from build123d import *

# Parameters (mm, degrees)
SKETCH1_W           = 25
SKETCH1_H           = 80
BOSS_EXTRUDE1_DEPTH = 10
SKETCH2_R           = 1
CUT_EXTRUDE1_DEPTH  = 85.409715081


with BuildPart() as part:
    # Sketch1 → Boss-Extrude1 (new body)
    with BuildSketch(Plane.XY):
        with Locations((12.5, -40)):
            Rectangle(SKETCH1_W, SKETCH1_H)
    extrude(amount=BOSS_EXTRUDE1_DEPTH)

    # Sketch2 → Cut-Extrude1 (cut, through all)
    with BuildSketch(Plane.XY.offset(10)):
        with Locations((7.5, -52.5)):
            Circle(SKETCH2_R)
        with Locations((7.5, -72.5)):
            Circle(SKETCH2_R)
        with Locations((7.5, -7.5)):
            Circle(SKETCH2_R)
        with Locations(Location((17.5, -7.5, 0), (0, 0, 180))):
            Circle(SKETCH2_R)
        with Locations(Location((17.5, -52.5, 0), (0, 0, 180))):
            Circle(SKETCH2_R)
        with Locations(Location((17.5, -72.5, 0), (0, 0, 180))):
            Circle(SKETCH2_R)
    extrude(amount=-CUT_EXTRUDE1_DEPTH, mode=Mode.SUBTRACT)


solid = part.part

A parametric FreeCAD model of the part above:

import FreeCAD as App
import Part
import Sketcher

doc = App.newDocument("Part")
body = doc.addObject("PartDesign::Body", "Body")

# Sketch on XY plane
sketch1 = body.newObject("Sketcher::SketchObject", "Sketch")
sketch1.AttachmentSupport = (doc.getObject("XY_Plane"), [""])
sketch1.MapMode = "FlatFace"
sketch1.addGeometry(Part.LineSegment(App.Vector(0, 0, 0), App.Vector(0, -80, 0)), False)
sketch1.addGeometry(Part.LineSegment(App.Vector(0, -80, 0), App.Vector(25, -80, 0)), False)
sketch1.addGeometry(Part.LineSegment(App.Vector(25, -80, 0), App.Vector(25, 0, 0)), False)
sketch1.addGeometry(Part.LineSegment(App.Vector(25, 0, 0), App.Vector(0, 0, 0)), False)
sketch1.addConstraint(Sketcher.Constraint("Coincident", 0, 2, 1, 1))
sketch1.addConstraint(Sketcher.Constraint("Coincident", 1, 2, 2, 1))
sketch1.addConstraint(Sketcher.Constraint("Coincident", 2, 2, 3, 1))
sketch1.addConstraint(Sketcher.Constraint("Coincident", 3, 2, 0, 1))
sketch1.addConstraint(Sketcher.Constraint("Vertical", 0))
sketch1.addConstraint(Sketcher.Constraint("Horizontal", 1))
sketch1.addConstraint(Sketcher.Constraint("Vertical", 2))
sketch1.addConstraint(Sketcher.Constraint("Horizontal", 3))
sketch1.addConstraint(Sketcher.Constraint("Coincident", 3, 2, -1, 1))
sketch1.addConstraint(Sketcher.Constraint("DistanceX", 1, 1, 1, 2, 25.0))
sketch1.addConstraint(Sketcher.Constraint("DistanceY", 0, 2, 0, 1, 80.0))
pad1 = body.newObject("PartDesign::Pad", "Pad")
pad1.Profile = sketch1
pad1.Length = 10

# Sketch on XY plane
sketch2 = body.newObject("Sketcher::SketchObject", "Sketch001")
sketch2.AttachmentSupport = (doc.getObject("XY_Plane"), [""])
sketch2.MapMode = "FlatFace"
sketch2.AttachmentOffset = App.Placement(App.Vector(0, 0, 10), App.Rotation())
sketch2.addGeometry(Part.Circle(App.Vector(7.5, -52.5, 0), App.Vector(0, 0, 1), 1), False)
sketch2.addGeometry(Part.Circle(App.Vector(7.5, -72.5, 0), App.Vector(0, 0, 1), 1), False)
sketch2.addGeometry(Part.Circle(App.Vector(7.5, -7.5, 0), App.Vector(0, 0, 1), 1), False)
sketch2.addGeometry(Part.Circle(App.Vector(17.5, -7.5, 0), App.Vector(0, 0, 1), 1), False)
sketch2.addGeometry(Part.Circle(App.Vector(17.5, -52.5, 0), App.Vector(0, 0, 1), 1), False)
sketch2.addGeometry(Part.Circle(App.Vector(17.5, -72.5, 0), App.Vector(0, 0, 1), 1), False)
sketch2.addConstraint(Sketcher.Constraint("Equal", 0, 1))
sketch2.addConstraint(Sketcher.Constraint("Equal", 1, 2))
sketch2.addConstraint(Sketcher.Constraint("Equal", 2, 3))
sketch2.addConstraint(Sketcher.Constraint("Equal", 3, 4))
sketch2.addConstraint(Sketcher.Constraint("Equal", 4, 5))
sketch2.addConstraint(Sketcher.Constraint("Horizontal", 2, 3, 3, 3))
sketch2.addConstraint(Sketcher.Constraint("Horizontal", 0, 3, 4, 3))
sketch2.addConstraint(Sketcher.Constraint("Horizontal", 1, 3, 5, 3))
sketch2.addConstraint(Sketcher.Constraint("Vertical", 0, 3, 1, 3))
sketch2.addConstraint(Sketcher.Constraint("Vertical", 1, 3, 2, 3))
sketch2.addConstraint(Sketcher.Constraint("Vertical", 3, 3, 4, 3))
sketch2.addConstraint(Sketcher.Constraint("Vertical", 4, 3, 5, 3))
sketch2.addConstraint(Sketcher.Constraint("Diameter", 0, 2.0))
sketch2.addConstraint(Sketcher.Constraint("DistanceY", 1, 3, 0, 3, 20.0))
sketch2.addConstraint(Sketcher.Constraint("DistanceY", 0, 3, 2, 3, 45.0))
sketch2.addConstraint(Sketcher.Constraint("DistanceX", 2, 3, 3, 3, 10.0))
sketch2.addConstraint(Sketcher.Constraint("DistanceX", -1, 1, 0, 3, 7.5))
sketch2.addConstraint(Sketcher.Constraint("DistanceY", 0, 3, -1, 1, 52.5))
pocket1 = body.newObject("PartDesign::Pocket", "Pocket")
pocket1.Profile = sketch2
pocket1.Type = "ThroughAll"

doc.recompute()
